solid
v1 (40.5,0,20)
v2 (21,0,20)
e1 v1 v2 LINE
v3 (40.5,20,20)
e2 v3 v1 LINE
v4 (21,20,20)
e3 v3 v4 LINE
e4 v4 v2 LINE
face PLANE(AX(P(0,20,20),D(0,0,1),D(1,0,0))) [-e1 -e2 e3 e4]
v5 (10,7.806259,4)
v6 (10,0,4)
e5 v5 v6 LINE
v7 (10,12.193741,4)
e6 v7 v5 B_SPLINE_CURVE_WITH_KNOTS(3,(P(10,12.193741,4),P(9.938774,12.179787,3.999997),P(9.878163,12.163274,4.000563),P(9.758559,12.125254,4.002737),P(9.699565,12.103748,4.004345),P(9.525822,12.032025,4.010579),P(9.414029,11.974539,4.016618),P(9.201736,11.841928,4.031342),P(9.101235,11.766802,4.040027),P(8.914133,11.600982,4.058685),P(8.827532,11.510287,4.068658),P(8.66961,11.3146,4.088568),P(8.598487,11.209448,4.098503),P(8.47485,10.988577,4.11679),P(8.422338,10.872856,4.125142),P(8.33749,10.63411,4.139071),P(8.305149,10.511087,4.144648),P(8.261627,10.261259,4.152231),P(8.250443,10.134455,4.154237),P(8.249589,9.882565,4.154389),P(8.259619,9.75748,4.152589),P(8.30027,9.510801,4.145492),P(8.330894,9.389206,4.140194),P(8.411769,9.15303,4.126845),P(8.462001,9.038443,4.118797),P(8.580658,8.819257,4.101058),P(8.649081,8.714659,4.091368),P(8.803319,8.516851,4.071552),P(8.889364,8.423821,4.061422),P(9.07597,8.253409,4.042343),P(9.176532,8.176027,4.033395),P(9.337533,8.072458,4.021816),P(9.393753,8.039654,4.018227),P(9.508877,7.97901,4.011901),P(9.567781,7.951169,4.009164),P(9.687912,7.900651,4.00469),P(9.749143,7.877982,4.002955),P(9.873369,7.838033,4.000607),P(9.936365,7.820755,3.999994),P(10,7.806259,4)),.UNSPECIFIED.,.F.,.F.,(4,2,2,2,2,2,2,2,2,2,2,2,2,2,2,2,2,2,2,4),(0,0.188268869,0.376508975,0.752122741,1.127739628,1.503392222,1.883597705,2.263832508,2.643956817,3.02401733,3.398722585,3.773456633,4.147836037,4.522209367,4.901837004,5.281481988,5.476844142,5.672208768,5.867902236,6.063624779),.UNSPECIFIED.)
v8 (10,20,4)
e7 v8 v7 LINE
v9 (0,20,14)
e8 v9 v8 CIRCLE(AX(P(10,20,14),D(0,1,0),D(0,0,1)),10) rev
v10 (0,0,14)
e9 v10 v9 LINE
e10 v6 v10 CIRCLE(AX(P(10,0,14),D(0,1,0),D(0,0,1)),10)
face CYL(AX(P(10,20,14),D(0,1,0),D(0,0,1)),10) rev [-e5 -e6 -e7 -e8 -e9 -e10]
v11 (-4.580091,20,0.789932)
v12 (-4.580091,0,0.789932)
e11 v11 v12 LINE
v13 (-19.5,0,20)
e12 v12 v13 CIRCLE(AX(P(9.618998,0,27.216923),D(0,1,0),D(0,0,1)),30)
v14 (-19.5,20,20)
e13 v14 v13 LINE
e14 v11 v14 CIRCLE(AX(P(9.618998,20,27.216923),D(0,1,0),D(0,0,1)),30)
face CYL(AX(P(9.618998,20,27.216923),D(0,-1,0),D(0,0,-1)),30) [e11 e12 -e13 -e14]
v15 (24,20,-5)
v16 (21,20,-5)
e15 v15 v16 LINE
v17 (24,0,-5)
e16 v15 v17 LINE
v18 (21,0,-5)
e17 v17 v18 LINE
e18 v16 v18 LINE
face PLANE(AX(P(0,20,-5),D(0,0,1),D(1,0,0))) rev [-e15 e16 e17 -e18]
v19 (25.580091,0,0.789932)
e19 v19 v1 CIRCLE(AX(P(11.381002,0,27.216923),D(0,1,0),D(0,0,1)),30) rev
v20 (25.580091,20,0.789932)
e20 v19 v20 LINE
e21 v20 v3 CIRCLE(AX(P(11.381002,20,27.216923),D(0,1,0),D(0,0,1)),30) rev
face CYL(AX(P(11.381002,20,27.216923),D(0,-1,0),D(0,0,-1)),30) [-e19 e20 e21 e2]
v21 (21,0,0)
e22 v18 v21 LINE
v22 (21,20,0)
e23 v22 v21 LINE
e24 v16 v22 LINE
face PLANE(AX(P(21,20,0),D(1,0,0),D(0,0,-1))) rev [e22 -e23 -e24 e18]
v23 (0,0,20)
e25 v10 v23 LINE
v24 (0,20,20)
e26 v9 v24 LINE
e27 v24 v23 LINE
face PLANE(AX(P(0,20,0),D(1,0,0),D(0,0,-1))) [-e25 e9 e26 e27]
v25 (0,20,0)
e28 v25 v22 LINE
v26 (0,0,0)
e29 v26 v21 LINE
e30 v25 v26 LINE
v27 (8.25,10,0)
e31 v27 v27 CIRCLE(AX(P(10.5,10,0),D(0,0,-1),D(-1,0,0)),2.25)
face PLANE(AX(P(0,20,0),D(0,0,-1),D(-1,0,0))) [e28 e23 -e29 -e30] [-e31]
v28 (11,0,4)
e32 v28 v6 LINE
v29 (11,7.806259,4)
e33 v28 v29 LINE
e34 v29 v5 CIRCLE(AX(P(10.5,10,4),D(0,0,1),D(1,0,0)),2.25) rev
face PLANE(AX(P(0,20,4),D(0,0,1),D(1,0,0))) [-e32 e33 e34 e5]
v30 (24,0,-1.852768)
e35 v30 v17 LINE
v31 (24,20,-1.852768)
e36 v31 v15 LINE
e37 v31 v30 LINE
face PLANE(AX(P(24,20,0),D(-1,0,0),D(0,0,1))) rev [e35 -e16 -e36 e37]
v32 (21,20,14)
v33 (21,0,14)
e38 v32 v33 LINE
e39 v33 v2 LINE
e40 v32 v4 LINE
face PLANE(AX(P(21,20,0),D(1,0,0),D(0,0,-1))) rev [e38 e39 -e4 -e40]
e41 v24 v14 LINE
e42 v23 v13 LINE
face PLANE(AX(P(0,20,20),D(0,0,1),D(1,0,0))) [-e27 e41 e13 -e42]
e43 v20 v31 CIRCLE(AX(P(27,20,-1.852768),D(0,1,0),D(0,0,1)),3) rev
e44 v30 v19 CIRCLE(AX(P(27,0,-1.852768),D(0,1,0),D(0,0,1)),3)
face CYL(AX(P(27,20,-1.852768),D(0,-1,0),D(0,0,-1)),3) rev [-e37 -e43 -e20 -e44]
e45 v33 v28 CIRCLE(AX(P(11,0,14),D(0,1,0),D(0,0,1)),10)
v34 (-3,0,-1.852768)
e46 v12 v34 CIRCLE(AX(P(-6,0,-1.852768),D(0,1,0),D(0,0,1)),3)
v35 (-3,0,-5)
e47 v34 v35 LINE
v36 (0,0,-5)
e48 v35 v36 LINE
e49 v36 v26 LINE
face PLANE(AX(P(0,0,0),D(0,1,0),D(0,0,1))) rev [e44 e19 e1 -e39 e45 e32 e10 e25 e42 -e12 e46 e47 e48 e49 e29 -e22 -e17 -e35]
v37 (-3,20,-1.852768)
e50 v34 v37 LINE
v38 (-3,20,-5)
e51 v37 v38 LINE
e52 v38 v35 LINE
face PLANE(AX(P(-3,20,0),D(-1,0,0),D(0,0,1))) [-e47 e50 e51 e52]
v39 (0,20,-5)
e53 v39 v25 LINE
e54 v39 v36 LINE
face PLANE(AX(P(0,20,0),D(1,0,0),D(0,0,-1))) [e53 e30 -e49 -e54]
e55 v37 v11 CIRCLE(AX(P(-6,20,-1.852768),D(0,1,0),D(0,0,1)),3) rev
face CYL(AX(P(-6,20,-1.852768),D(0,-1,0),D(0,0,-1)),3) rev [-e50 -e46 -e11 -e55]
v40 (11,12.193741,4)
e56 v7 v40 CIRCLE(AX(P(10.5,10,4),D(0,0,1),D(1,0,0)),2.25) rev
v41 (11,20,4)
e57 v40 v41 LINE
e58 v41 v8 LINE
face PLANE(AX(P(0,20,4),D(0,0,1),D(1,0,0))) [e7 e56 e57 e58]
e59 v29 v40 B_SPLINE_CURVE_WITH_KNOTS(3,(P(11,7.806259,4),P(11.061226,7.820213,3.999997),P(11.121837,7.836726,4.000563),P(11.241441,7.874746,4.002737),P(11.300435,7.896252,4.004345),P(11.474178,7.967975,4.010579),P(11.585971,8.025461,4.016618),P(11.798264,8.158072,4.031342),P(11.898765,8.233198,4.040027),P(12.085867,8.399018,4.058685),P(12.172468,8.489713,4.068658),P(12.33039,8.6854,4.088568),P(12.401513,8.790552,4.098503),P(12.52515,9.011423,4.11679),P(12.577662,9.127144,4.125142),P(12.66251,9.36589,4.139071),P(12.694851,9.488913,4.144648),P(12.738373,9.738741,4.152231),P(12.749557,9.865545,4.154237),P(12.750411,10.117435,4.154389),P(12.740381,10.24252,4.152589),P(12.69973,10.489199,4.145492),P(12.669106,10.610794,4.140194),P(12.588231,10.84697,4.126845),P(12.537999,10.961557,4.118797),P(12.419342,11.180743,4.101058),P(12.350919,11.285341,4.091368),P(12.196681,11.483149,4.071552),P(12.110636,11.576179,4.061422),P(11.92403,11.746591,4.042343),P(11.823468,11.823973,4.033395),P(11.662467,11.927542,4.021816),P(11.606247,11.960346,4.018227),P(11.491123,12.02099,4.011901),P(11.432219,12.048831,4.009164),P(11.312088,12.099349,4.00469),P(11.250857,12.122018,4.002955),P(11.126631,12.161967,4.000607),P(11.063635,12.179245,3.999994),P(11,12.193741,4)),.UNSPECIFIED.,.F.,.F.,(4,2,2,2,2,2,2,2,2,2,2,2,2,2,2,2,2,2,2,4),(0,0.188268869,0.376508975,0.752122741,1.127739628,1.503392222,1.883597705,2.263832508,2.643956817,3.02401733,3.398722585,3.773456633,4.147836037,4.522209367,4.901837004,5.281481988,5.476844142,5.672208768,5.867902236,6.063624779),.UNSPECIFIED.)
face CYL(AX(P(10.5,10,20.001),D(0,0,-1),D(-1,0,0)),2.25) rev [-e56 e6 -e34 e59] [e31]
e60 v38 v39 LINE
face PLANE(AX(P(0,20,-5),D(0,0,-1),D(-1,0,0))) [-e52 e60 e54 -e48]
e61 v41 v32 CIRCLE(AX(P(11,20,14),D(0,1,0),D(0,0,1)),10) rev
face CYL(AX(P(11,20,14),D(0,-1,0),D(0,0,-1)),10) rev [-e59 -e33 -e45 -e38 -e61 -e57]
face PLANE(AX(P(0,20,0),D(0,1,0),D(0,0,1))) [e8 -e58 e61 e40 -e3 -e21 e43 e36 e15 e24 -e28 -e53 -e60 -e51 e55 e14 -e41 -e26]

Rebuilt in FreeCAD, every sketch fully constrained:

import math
import FreeCAD as App
import Part
import Sketcher

V = App.Vector
Q = App.Units.Quantity


def edges_at(feature, points):
    """Names of the edges that pass closest to the given points."""
    edges = feature.Shape.Edges
    near = lambda p: min(range(len(edges)), key=lambda i: edges[i].distToShape(Part.Vertex(*p))[0])
    return sorted({f"Edge{near(p) + 1}" for p in points})

doc = App.newDocument("Part")
body = doc.addObject("PartDesign::Body", "Body")

sketch1 = body.newObject("Sketcher::SketchObject", "Sketch")
sketch1.AttachmentSupport = (doc.getObject("XZ_Plane"), [""])
sketch1.MapMode = "FlatFace"
sketch1.addGeometry(Part.ArcOfCircle(Part.Circle(V(9.6, 27.2, 0), V(0, 0, 1), 30), math.radians(-166), math.radians(-115)), False)
sketch1.addGeometry(Part.LineSegment(V(-19.5, 20, 0), V(0, 20, 0)), False)
sketch1.addGeometry(Part.LineSegment(V(0, 20, 0), V(0, 4, 0)), False)
sketch1.addGeometry(Part.LineSegment(V(0, 4, 0), V(21, 4, 0)), False)
sketch1.addGeometry(Part.LineSegment(V(21, 4, 0), V(21, 20, 0)), False)
sketch1.addGeometry(Part.LineSegment(V(21, 20, 0), V(40.5, 20, 0)), False)
sketch1.addGeometry(Part.ArcOfCircle(Part.Circle(V(11.4, 27.2, 0), V(0, 0, 1), 30), math.radians(-65), math.radians(-14)), False)
sketch1.addGeometry(Part.LineSegment(V(24, 0, 0), V(24, -5, 0)), False)
sketch1.addGeometry(Part.LineSegment(V(24, -5, 0), V(21, -5, 0)), False)
sketch1.addGeometry(Part.LineSegment(V(21, -5, 0), V(21, 0, 0)), False)
sketch1.addGeometry(Part.LineSegment(V(21, 0, 0), V(0, 0, 0)), False)
sketch1.addGeometry(Part.LineSegment(V(0, 0, 0), V(0, -5, 0)), False)
sketch1.addGeometry(Part.LineSegment(V(0, -5, 0), V(-3, -5, 0)), False)
sketch1.addGeometry(Part.LineSegment(V(-3, -5, 0), V(-3, 0, 0)), False)
sketch1.addConstraint(Sketcher.Constraint("Coincident", 0, 1, 1, 1))
sketch1.addConstraint(Sketcher.Constraint("Coincident", 1, 2, 2, 1))
sketch1.addConstraint(Sketcher.Constraint("Coincident", 2, 2, 3, 1))
sketch1.addConstraint(Sketcher.Constraint("Coincident", 3, 2, 4, 1))
sketch1.addConstraint(Sketcher.Constraint("Coincident", 4, 2, 5, 1))
sketch1.addConstraint(Sketcher.Constraint("Coincident", 5, 2, 6, 2))
sketch1.addConstraint(Sketcher.Constraint("Coincident", 6, 1, 7, 1))
sketch1.addConstraint(Sketcher.Constraint("Coincident", 7, 2, 8, 1))
sketch1.addConstraint(Sketcher.Constraint("Coincident", 8, 2, 9, 1))
sketch1.addConstraint(Sketcher.Constraint("Coincident", 9, 2, 10, 1))
sketch1.addConstraint(Sketcher.Constraint("Coincident", 10, 2, 11, 1))
sketch1.addConstraint(Sketcher.Constraint("Coincident", 11, 2, 12, 1))
sketch1.addConstraint(Sketcher.Constraint("Coincident", 12, 2, 13, 1))
sketch1.addConstraint(Sketcher.Constraint("Coincident", 13, 2, 0, 2))
sketch1.addConstraint(Sketcher.Constraint("Horizontal", 1))
sketch1.addConstraint(Sketcher.Constraint("Vertical", 2))
sketch1.addConstraint(Sketcher.Constraint("Horizontal", 3))
sketch1.addConstraint(Sketcher.Constraint("Vertical", 4))
sketch1.addConstraint(Sketcher.Constraint("Horizontal", 5))
sketch1.addConstraint(Sketcher.Constraint("Vertical", 7))
sketch1.addConstraint(Sketcher.Constraint("Horizontal", 8))
sketch1.addConstraint(Sketcher.Constraint("Vertical", 9))
sketch1.addConstraint(Sketcher.Constraint("Horizontal", 10))
sketch1.addConstraint(Sketcher.Constraint("Vertical", 11))
sketch1.addConstraint(Sketcher.Constraint("Horizontal", 12))
sketch1.addConstraint(Sketcher.Constraint("Vertical", 13))
sketch1.addConstraint(Sketcher.Constraint("Coincident", 10, 2, -1, 1))
sketch1.addConstraint(Sketcher.Constraint("Equal", 0, 6))
sketch1.addConstraint(Sketcher.Constraint("PointOnObject", 1, 2, -2))
sketch1.addConstraint(Sketcher.Constraint("PointOnObject", 6, 1, -1))
sketch1.addConstraint(Sketcher.Constraint("PointOnObject", 13, 2, -1))
sketch1.addConstraint(Sketcher.Constraint("Horizontal", 0, 3, 6, 3))
sketch1.addConstraint(Sketcher.Constraint("Horizontal", 1, 2, 4, 2))
sketch1.addConstraint(Sketcher.Constraint("Horizontal", 8, 2, 11, 2))
sketch1.addConstraint(Sketcher.Constraint("Vertical", 4, 2, 8, 2))
sketch1.addConstraint(Sketcher.Constraint("Equal", 1, 5))
sketch1.addConstraint(Sketcher.Constraint("Radius", 0, Q("30 mm")))
sketch1.addConstraint(Sketcher.Constraint("DistanceX", 3, 1, 3, 2, Q("21 mm")))
sketch1.addConstraint(Sketcher.Constraint("DistanceX", 8, 2, 8, 1, Q("3 mm")))
sketch1.addConstraint(Sketcher.Constraint("DistanceY", 2, 2, 2, 1, Q("16 mm")))
sketch1.addConstraint(Sketcher.Constraint("DistanceY", 7, 2, 7, 1, Q("5 mm")))
sketch1.addConstraint(Sketcher.Constraint("DistanceX", 1, 1, 1, 2, Q("19.5 mm")))
sketch1.addConstraint(Sketcher.Constraint("DistanceY", -1, 1, 0, 1, Q("20 mm")))
pad1 = body.newObject("PartDesign::Pad", "Pad")
pad1.Profile = sketch1
pad1.Length = 20
pad1.Reversed = True
doc.recompute()

fillet = body.newObject("PartDesign::Fillet", "Fillet")
fillet.Base = (pad1, edges_at(pad1, [(21, 10, 4), (0, 10, 4)]))
fillet.Radius = 10
doc.recompute()

fillet2 = body.newObject("PartDesign::Fillet", "Fillet001")
fillet2.Base = (fillet, edges_at(fillet, [(24, 10, 0), (-3, 10, 0)]))
fillet2.Radius = 3

sketch2 = body.newObject("Sketcher::SketchObject", "Sketch001")
sketch2.AttachmentSupport = (doc.getObject("XY_Plane"), [""])
sketch2.MapMode = "FlatFace"
sketch2.addGeometry(Part.Circle(V(10.5, 10, 0), V(0, 0, 1), 2.2), False)
sketch2.addConstraint(Sketcher.Constraint("Diameter", 0, Q("4.5 mm")))
sketch2.addConstraint(Sketcher.Constraint("DistanceY", -1, 1, 0, 3, Q("10 mm")))
sketch2.addConstraint(Sketcher.Constraint("DistanceX", -1, 1, 0, 3, Q("10.5 mm")))
pocket1 = body.newObject("PartDesign::Pocket", "Pocket")
pocket1.Profile = sketch2
pocket1.Length = 4.154316
pocket1.Reversed = True

doc.recompute()
